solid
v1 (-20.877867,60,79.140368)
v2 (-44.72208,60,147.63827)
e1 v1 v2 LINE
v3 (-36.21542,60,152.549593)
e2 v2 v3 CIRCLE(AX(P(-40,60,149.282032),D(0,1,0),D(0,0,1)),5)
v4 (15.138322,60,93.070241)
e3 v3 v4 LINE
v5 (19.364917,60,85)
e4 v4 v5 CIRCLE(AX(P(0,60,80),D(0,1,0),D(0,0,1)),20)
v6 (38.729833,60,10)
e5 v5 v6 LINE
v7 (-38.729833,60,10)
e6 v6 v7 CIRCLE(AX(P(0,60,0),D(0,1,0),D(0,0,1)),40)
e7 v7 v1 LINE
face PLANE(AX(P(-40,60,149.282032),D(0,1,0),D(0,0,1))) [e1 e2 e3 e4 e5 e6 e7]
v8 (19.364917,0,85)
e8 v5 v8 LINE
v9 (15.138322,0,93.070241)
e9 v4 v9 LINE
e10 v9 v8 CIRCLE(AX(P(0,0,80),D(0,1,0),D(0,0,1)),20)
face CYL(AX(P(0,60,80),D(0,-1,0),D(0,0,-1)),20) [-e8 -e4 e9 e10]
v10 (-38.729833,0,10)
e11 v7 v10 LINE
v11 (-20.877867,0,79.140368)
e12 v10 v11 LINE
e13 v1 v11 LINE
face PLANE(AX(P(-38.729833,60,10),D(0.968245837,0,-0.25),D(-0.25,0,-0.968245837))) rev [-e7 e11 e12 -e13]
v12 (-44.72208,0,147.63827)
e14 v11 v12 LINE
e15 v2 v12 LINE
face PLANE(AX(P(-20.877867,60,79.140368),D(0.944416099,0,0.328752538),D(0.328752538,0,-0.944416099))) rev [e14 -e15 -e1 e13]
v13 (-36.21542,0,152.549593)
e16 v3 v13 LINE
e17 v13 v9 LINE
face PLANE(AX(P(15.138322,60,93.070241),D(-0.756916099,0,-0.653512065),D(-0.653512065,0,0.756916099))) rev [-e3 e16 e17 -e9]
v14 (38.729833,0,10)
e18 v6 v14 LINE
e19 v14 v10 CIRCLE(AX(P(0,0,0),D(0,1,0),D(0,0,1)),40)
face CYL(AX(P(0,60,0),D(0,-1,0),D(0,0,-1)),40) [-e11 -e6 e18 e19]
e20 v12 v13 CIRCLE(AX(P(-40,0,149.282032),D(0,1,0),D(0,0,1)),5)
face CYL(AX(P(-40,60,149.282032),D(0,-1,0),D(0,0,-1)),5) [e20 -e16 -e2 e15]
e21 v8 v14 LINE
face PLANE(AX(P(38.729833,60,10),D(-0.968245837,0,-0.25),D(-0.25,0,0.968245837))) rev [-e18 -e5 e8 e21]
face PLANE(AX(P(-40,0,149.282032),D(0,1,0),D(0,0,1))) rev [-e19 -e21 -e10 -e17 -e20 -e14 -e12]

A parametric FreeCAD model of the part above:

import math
import FreeCAD as App
import Part
import Sketcher

V = App.Vector
Q = App.Units.Quantity

doc = App.newDocument("Part")
params = doc.addObject("Spreadsheet::Sheet", "Params")
for row, (alias, value) in enumerate([
    ("sketch1_radius", "5 mm"),
    ("sketch1_radius2", "20 mm"),
    ("sketch1_radius3", "40 mm"),
    ("pad1_length", "60 mm"),
], start=1):
    params.set(f"A{row}", alias)
    params.set(f"B{row}", "=" + value)
    params.setAlias(f"B{row}", alias)

body = doc.addObject("PartDesign::Body", "Body")

# Sketch on XZ plane
sketch1 = body.newObject("Sketcher::SketchObject", "Sketch")
sketch1.AttachmentSupport = (doc.getObject("XZ_Plane"), [""])
sketch1.MapMode = "FlatFace"
sketch1.addGeometry([
    Part.LineSegment(V(-39, 10, 0), V(-21, 79, 0)),  # 0
    Part.LineSegment(V(-21, 79, 0), V(-45, 148, 0)),  # 1
    Part.ArcOfCircle(Part.Circle(V(-40, 149, 0), V(0, 0, 1), 5), math.radians(41), math.radians(199)),  # 2
    Part.LineSegment(V(-36, 153, 0), V(15, 93, 0)),  # 3
    Part.ArcOfCircle(Part.Circle(V(0, 80, 0), V(0, 0, 1), 20), math.radians(14), math.radians(41)),  # 4
    Part.LineSegment(V(19, 85, 0), V(39, 10, 0)),  # 5
    Part.ArcOfCircle(Part.Circle(V(0, 0, 0), V(0, 0, 1), 40), math.radians(166), math.radians(374)),  # 6
], False)
sketch1.addConstraint([
    Sketcher.Constraint("Coincident", 0, 2, 1, 1),
    Sketcher.Constraint("Tangent", 1, 2, 2, 2),
    Sketcher.Constraint("Tangent", 2, 1, 3, 1),
    Sketcher.Constraint("Tangent", 3, 2, 4, 2),
    Sketcher.Constraint("Tangent", 4, 1, 5, 1),
    Sketcher.Constraint("Tangent", 5, 2, 6, 2),
    Sketcher.Constraint("Tangent", 6, 1, 0, 1),
    Sketcher.Constraint("Coincident", 6, 3, -1, 1),
    Sketcher.Constraint("PointOnObject", 4, 3, -2),
    Sketcher.Constraint("Horizontal", 5, 2, 6, 1),
    Sketcher.Constraint("Radius", 2, Q("5 mm")),
    Sketcher.Constraint("Radius", 4, Q("20 mm")),
    Sketcher.Constraint("Radius", 6, Q("40 mm")),
    Sketcher.Constraint("DistanceX", 2, 3, -1, 1, Q("40 mm")),
    Sketcher.Constraint("DistanceY", -1, 1, 4, 3, Q("80 mm")),
    Sketcher.Constraint("DistanceY", 0, 2, 1, 2, Q("68.497901 mm")),
    Sketcher.Constraint("DistanceX", 0, 2, 5, 2, Q("59.607701 mm")),
])
sketch1.setExpression("Constraints[10]", "Params.sketch1_radius")
sketch1.setExpression("Constraints[11]", "Params.sketch1_radius2")
sketch1.setExpression("Constraints[12]", "Params.sketch1_radius3")
pad1 = body.newObject("PartDesign::Pad", "Pad")
pad1.Profile = sketch1
pad1.setExpression("Length", "Params.pad1_length")
pad1.Reversed = True

doc.recompute()
